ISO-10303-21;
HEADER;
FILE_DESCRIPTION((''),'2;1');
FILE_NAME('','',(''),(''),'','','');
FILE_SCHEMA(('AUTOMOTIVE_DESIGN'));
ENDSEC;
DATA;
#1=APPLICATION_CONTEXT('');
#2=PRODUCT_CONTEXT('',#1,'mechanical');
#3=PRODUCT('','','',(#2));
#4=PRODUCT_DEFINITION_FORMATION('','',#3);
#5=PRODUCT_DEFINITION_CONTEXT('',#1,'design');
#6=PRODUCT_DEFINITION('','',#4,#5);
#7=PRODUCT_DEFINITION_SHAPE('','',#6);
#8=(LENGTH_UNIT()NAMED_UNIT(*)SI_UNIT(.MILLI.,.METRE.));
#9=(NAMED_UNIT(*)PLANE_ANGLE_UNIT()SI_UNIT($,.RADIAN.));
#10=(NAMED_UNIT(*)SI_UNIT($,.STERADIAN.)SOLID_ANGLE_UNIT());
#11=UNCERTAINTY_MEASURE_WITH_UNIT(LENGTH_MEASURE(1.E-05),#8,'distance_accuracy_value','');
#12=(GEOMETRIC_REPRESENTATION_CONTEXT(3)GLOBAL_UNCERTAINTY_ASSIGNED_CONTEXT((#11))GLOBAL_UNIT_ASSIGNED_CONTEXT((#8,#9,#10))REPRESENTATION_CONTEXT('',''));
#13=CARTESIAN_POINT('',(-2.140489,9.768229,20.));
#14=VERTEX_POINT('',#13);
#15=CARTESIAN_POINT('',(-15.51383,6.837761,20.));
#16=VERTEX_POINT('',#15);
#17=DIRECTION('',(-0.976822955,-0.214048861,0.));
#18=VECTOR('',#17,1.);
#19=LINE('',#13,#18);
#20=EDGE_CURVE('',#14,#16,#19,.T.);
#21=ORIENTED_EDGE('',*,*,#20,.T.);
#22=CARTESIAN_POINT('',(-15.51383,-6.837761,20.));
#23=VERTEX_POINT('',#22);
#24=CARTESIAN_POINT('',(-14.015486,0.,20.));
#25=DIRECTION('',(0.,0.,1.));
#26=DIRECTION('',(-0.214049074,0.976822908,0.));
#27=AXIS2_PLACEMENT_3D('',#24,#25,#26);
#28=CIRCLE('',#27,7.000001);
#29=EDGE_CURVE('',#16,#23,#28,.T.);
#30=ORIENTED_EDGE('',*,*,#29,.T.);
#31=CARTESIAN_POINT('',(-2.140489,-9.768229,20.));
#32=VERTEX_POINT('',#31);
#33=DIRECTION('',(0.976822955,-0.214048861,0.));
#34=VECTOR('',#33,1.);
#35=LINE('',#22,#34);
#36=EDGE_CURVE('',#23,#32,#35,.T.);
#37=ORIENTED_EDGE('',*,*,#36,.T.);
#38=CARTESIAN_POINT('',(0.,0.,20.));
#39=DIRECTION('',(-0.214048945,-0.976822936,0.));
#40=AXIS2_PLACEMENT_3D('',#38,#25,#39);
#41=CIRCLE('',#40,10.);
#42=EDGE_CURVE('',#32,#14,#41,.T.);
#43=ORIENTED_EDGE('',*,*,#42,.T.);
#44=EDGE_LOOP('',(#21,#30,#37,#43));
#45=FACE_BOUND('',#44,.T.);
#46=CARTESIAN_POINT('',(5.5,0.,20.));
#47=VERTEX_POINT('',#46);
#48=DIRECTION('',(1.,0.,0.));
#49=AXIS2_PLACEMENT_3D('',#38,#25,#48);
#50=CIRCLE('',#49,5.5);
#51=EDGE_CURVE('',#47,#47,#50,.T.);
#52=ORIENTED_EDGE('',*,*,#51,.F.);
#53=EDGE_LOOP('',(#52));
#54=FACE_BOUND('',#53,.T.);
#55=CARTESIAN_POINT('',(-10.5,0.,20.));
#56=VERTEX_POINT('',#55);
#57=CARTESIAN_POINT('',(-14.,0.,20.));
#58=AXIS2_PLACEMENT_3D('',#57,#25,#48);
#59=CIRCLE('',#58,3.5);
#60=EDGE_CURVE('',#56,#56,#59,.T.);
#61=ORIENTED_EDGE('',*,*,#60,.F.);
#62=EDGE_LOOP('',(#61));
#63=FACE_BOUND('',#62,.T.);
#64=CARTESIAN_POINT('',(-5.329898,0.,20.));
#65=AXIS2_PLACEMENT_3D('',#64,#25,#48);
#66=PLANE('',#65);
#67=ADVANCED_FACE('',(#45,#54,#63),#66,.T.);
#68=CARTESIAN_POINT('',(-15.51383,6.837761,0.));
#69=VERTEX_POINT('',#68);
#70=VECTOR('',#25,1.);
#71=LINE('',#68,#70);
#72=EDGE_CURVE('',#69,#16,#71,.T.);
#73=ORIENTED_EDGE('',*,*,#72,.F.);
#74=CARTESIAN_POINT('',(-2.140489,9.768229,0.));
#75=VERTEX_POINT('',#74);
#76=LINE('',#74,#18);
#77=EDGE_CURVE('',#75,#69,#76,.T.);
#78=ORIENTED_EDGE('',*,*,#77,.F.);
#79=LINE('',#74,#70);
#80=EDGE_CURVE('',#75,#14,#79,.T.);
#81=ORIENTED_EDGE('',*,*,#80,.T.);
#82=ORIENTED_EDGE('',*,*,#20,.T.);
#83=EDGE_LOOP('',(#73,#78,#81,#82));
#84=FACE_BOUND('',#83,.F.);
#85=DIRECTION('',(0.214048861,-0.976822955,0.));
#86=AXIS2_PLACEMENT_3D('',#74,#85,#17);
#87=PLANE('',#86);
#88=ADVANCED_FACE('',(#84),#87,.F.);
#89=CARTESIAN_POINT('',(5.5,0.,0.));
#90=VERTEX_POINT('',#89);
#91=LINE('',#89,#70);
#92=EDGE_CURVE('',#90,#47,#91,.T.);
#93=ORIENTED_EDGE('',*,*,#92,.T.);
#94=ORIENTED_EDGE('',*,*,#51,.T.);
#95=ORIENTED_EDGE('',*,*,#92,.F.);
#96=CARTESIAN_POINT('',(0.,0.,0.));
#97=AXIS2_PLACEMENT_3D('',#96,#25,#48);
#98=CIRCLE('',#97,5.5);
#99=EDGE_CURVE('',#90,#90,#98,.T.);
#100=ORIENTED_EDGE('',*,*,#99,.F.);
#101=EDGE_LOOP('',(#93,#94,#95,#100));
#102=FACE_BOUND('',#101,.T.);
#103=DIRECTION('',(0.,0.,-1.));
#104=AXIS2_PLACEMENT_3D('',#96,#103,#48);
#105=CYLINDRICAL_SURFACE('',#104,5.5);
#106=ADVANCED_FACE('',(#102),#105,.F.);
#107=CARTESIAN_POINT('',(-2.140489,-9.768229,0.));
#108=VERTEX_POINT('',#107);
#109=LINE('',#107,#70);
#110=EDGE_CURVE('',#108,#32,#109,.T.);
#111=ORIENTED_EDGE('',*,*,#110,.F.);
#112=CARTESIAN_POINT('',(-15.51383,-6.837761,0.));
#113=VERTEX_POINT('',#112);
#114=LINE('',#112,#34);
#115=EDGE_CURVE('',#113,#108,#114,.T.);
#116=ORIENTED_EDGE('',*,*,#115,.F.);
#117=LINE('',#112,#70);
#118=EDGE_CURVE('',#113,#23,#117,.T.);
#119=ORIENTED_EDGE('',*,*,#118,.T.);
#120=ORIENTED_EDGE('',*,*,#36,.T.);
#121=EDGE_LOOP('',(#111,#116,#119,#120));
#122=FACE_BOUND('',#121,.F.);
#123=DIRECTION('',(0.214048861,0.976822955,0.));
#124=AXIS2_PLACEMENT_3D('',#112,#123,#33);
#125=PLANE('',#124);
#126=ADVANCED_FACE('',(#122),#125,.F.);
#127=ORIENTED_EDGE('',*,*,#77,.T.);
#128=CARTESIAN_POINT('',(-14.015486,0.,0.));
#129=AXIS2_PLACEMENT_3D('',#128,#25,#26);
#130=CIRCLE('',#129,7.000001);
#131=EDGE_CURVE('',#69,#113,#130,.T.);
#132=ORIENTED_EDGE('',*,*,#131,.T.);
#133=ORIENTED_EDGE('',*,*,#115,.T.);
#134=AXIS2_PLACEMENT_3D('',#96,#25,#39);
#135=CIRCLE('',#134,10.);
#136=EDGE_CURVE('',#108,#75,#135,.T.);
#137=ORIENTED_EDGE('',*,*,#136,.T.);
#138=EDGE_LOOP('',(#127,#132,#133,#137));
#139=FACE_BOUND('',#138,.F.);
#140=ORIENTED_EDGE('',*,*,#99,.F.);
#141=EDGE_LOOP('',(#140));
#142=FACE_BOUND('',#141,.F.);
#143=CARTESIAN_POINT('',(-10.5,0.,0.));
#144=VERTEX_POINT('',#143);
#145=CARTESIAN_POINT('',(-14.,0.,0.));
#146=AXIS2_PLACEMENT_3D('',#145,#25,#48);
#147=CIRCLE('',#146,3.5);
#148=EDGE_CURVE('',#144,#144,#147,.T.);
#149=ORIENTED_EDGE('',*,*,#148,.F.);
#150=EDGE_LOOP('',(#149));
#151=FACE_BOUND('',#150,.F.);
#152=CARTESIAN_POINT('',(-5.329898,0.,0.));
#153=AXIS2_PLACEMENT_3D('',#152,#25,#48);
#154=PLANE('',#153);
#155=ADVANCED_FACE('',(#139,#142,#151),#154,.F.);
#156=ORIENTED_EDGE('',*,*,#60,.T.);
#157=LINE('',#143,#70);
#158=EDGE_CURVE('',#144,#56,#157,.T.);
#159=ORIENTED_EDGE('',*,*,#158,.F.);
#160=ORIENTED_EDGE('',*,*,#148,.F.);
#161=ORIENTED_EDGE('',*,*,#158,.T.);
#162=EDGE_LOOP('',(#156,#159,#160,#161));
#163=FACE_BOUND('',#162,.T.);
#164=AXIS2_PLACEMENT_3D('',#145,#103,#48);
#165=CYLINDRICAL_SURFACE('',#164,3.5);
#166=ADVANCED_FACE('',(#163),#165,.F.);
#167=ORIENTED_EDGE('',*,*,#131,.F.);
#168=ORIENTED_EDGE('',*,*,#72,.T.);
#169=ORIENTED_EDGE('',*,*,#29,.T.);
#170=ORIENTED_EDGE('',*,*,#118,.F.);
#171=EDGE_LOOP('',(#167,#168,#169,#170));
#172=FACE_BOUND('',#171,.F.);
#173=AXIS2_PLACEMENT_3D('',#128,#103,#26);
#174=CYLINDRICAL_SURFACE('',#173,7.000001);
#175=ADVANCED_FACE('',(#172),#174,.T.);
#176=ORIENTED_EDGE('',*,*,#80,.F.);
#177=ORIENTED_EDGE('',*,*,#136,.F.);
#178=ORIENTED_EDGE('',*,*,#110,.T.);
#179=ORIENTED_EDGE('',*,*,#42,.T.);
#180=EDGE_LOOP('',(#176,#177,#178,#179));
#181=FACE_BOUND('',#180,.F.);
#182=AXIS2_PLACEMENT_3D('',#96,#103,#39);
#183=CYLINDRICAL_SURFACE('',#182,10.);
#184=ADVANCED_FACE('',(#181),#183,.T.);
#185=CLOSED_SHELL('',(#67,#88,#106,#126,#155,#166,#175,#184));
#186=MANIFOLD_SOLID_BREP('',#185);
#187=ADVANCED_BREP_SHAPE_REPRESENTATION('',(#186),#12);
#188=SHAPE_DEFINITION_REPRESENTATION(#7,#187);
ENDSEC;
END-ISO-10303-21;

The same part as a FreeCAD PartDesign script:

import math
import FreeCAD as App
import Part
import Sketcher

V = App.Vector

doc = App.newDocument("Part")
params = doc.addObject("Spreadsheet::Sheet", "Params")
for row, (alias, value) in enumerate([
    ("sketch1_radius", "10 mm"),
    ("sketch1_radius2", "7.000001 mm"),
    ("pad1_length", "20 mm"),
    ("sketch2_diameter", "7 mm"),
    ("pocket1_length", "20 mm"),
    ("sketch3_diameter", "11 mm"),
    ("pocket2_length", "20 mm"),
], start=1):
    params.set(f"A{row}", alias)
    params.set(f"B{row}", "=" + value)
    params.setAlias(f"B{row}", alias)

body = doc.addObject("PartDesign::Body", "Body")

# Sketch on XY plane
sketch1 = body.newObject("Sketcher::SketchObject", "Sketch")
sketch1.AttachmentSupport = (doc.getObject("XY_Plane"), [""])
sketch1.MapMode = "FlatFace"
sketch1.addGeometry([
    Part.LineSegment(V(-16, -7, 0), V(-2, -10, 0)),
    Part.ArcOfCircle(Part.Circle(V(0, 0, 0), V(0, 0, 1), 10), math.radians(-102), math.radians(102)),
    Part.LineSegment(V(-2, 10, 0), V(-16, 7, 0)),
    Part.ArcOfCircle(Part.Circle(V(-14, 0, 0), V(0, 0, 1), 7), math.radians(102), math.radians(258)),
], False)
sketch1.addConstraint([
    Sketcher.Constraint("Tangent", 0, 2, 1, 1),
    Sketcher.Constraint("Tangent", 1, 2, 2, 1),
    Sketcher.Constraint("Tangent", 2, 2, 3, 1),
    Sketcher.Constraint("Tangent", 3, 2, 0, 1),
    Sketcher.Constraint("Coincident", 1, 3, -1, 1),
    Sketcher.Constraint("PointOnObject", 3, 3, -1),
    Sketcher.Constraint("Radius", 1, 10.0),
    Sketcher.Constraint("Radius", 3, 7.000001),
    Sketcher.Constraint("Distance", 0, 13.69065),
])
sketch1.setExpression("Constraints[6]", "Params.sketch1_radius")
sketch1.setExpression("Constraints[7]", "Params.sketch1_radius2")
pad1 = body.newObject("PartDesign::Pad", "Pad")
pad1.Profile = sketch1
pad1.setExpression("Length", "Params.pad1_length")

# Sketch on XY plane
sketch2 = body.newObject("Sketcher::SketchObject", "Sketch001")
sketch2.AttachmentSupport = (doc.getObject("XY_Plane"), [""])
sketch2.MapMode = "FlatFace"
sketch2.addGeometry(Part.Circle(V(-14, 0, 0), V(0, 0, 1), 3.5), False)
sketch2.addConstraint([
    Sketcher.Constraint("PointOnObject", 0, 3, -1),
    Sketcher.Constraint("Diameter", 0, 7.0),
    Sketcher.Constraint("DistanceX", 0, 3, -1, 1, 14.0),
])
sketch2.setExpression("Constraints[1]", "Params.sketch2_diameter")
pocket1 = body.newObject("PartDesign::Pocket", "Pocket")
pocket1.Profile = sketch2
pocket1.setExpression("Length", "Params.pocket1_length")
pocket1.Reversed = True

# Sketch on XY plane
sketch3 = body.newObject("Sketcher::SketchObject", "Sketch002")
sketch3.AttachmentSupport = (doc.getObject("XY_Plane"), [""])
sketch3.MapMode = "FlatFace"
sketch3.addGeometry(Part.Circle(V(0, 0, 0), V(0, 0, 1), 6), False)
sketch3.addConstraint([
    Sketcher.Constraint("Coincident", 0, 3, -1, 1),
    Sketcher.Constraint("Diameter", 0, 11.0),
])
sketch3.setExpression("Constraints[1]", "Params.sketch3_diameter")
pocket2 = body.newObject("PartDesign::Pocket", "Pocket001")
pocket2.Profile = sketch3
pocket2.setExpression("Length", "Params.pocket2_length")
pocket2.Reversed = True

doc.recompute()
